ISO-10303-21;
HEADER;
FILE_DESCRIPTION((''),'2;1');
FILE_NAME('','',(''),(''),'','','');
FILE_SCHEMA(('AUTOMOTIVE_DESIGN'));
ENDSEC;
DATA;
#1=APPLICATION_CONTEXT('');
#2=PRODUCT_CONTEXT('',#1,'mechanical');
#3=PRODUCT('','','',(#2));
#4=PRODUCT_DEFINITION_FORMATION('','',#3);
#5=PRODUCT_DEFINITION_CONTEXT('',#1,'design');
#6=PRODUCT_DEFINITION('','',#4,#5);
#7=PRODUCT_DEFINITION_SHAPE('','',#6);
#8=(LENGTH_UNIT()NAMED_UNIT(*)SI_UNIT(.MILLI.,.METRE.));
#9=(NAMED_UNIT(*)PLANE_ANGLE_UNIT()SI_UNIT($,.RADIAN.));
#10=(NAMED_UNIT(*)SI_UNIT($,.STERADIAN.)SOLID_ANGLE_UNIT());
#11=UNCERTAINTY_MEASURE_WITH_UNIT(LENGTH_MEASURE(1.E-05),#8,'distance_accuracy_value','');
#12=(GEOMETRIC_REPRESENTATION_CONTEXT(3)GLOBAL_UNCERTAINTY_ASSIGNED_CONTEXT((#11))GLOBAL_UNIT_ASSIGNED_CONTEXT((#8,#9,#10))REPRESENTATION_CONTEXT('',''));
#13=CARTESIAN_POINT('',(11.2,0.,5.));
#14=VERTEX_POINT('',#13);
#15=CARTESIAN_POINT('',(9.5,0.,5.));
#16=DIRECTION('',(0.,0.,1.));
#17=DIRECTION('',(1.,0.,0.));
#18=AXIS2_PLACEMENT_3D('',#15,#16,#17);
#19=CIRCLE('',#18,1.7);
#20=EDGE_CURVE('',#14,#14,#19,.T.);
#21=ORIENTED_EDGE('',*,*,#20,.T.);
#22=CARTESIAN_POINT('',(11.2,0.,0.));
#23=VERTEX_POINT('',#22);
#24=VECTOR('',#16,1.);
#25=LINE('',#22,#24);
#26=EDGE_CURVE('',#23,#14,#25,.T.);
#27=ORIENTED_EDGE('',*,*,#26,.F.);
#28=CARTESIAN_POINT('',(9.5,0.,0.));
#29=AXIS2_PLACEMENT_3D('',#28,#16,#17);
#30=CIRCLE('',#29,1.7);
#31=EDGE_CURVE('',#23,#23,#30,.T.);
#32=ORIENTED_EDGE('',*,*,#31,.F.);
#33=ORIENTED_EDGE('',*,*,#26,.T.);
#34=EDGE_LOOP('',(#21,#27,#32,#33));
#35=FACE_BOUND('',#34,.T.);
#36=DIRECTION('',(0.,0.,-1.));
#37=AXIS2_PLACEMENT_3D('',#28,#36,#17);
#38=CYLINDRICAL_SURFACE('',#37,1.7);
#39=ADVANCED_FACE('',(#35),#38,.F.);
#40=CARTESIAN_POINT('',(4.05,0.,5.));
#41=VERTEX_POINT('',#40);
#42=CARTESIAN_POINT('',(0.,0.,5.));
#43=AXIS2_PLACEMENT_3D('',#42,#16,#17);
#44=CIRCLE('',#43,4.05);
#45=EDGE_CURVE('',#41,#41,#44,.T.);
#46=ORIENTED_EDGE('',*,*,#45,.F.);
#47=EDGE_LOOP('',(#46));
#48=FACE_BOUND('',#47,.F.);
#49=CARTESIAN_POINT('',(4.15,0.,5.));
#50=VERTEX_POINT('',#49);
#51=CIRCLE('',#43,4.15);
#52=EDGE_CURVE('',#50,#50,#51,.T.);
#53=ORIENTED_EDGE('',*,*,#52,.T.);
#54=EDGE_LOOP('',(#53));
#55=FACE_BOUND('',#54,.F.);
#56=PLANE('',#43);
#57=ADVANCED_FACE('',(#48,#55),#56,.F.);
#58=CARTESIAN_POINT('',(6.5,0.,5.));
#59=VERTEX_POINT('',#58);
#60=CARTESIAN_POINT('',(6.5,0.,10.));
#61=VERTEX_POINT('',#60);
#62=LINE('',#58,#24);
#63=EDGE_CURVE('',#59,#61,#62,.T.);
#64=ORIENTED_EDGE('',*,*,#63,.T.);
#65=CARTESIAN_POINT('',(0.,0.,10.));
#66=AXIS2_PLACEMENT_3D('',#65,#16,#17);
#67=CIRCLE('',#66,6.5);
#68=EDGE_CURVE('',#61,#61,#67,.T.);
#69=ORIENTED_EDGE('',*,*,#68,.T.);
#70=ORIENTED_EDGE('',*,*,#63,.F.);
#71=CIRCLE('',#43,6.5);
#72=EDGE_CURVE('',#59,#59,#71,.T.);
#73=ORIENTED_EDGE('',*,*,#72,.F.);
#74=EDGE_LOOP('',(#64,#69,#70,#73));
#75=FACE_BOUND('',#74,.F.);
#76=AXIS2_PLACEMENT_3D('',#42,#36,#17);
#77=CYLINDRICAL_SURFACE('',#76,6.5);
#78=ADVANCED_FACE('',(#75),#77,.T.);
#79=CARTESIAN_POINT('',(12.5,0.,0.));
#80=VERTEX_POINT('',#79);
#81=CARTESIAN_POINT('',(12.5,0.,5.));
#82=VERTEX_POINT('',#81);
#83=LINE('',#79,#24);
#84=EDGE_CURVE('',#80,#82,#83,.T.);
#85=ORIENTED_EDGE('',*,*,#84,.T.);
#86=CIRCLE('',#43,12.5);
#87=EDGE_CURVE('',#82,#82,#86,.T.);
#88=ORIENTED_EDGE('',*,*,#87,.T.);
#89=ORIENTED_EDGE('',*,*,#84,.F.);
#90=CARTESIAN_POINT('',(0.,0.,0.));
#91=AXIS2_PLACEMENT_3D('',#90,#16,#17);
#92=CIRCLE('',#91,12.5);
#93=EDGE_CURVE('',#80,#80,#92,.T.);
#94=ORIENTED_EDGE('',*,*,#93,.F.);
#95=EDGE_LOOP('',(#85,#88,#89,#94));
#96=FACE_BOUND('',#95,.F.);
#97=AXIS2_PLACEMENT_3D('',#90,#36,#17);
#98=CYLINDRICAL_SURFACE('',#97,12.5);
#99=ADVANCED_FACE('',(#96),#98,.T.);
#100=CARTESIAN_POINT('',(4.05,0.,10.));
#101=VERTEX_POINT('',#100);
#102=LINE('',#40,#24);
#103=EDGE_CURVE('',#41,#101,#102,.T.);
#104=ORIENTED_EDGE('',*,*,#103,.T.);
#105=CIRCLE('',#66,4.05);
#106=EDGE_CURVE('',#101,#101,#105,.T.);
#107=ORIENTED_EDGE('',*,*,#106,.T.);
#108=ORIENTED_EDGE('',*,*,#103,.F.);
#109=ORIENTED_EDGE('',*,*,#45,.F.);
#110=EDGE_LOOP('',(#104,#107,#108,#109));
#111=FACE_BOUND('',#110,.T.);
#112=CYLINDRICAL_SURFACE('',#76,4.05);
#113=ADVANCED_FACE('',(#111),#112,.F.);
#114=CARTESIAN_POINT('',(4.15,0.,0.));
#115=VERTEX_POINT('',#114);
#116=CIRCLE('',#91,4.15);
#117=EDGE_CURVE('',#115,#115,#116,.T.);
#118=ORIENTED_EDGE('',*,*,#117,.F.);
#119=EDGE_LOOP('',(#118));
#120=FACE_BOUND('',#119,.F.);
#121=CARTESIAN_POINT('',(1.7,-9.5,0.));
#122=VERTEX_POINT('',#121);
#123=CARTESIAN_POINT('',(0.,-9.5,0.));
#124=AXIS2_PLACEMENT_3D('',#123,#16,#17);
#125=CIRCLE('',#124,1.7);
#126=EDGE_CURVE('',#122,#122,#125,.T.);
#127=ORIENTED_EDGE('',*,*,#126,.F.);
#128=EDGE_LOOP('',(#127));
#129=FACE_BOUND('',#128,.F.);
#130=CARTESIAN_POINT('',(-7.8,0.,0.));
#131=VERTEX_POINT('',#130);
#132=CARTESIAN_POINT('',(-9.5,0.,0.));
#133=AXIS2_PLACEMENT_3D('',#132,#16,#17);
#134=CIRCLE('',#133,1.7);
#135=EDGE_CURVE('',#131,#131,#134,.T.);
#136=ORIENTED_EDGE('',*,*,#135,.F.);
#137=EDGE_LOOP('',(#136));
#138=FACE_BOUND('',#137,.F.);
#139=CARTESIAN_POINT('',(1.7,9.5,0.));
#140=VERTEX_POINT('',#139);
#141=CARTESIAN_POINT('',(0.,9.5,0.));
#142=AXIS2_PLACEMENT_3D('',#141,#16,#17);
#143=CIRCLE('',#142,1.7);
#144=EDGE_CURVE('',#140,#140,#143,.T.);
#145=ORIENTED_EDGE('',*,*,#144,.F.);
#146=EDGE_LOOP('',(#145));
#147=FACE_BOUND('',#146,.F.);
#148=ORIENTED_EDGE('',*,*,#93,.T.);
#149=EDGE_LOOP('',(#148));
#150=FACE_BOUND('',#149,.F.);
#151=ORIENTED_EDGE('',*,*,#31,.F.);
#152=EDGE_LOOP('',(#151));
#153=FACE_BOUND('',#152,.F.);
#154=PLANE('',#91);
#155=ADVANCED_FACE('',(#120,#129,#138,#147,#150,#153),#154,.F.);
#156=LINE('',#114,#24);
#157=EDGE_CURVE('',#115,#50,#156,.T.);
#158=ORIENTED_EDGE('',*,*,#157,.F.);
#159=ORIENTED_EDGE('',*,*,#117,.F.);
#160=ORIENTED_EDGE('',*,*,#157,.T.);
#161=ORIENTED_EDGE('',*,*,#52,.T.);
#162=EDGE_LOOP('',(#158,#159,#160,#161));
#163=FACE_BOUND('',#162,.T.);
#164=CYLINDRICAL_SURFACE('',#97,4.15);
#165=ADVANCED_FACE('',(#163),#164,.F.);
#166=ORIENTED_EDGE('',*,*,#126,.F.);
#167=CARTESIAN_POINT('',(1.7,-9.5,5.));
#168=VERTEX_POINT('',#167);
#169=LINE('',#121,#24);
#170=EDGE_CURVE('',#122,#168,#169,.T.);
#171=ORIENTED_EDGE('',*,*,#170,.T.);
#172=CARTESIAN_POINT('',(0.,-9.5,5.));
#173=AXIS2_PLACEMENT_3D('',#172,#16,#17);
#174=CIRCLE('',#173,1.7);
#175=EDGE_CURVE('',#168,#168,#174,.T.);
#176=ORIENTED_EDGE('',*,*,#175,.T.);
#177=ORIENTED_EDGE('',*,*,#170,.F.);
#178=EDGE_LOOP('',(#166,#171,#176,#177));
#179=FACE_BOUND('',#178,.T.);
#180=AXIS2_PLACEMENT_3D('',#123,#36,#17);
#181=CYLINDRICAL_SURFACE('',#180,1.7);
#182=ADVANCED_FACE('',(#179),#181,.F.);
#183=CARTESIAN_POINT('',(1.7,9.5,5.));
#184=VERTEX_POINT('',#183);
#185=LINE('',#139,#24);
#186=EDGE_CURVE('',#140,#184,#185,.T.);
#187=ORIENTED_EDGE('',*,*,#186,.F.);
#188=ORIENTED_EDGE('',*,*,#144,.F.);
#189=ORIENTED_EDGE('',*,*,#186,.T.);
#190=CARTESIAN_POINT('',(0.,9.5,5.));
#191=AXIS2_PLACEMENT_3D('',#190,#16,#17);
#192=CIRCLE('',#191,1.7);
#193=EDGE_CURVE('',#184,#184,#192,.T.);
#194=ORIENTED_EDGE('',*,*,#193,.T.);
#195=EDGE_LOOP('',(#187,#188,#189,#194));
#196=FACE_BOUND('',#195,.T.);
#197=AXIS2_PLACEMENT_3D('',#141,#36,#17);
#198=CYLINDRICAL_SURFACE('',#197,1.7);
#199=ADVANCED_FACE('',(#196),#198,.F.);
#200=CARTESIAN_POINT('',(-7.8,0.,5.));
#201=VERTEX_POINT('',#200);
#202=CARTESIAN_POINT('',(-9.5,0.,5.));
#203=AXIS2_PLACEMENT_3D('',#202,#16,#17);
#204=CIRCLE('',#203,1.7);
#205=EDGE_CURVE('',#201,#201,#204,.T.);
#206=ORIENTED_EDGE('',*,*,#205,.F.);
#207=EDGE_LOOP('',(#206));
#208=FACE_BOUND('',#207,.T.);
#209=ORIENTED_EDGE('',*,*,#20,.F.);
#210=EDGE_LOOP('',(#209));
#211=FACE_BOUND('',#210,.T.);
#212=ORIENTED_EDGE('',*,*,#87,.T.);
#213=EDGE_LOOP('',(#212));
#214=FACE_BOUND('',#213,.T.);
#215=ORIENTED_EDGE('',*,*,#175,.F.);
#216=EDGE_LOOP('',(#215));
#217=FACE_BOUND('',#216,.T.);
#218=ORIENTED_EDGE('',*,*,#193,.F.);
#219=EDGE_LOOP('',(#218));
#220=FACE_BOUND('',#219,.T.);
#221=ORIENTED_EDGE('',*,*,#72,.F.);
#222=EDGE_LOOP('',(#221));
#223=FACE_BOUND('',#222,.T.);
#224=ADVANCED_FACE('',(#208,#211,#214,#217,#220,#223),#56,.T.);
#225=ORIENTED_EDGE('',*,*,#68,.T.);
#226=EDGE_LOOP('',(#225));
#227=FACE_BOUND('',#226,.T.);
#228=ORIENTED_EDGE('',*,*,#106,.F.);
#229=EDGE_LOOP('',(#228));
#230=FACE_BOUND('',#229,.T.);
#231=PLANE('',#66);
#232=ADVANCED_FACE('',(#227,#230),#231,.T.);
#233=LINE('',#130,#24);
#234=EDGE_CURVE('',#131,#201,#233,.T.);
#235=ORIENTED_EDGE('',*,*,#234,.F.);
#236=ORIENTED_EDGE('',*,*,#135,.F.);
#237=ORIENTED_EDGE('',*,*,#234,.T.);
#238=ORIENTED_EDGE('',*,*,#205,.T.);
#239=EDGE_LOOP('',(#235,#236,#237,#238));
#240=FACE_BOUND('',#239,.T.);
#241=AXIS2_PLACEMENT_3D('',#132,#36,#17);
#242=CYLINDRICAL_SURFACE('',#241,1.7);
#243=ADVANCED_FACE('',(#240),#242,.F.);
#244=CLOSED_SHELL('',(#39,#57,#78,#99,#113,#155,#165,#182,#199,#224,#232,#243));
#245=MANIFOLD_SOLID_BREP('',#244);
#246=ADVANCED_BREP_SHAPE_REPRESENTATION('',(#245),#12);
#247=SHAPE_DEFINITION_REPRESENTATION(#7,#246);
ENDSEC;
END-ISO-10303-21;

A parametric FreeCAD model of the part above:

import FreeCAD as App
import Part
import Sketcher

doc = App.newDocument("Part")
params = doc.addObject("Spreadsheet::Sheet", "Params")
for row, (alias, value) in enumerate([
    ("sketch1_diameter", "25 mm"),
    ("sketch1_diameter2", "3.4 mm"),
    ("sketch1_diameter3", "8.3 mm"),
    ("pad1_length", "5 mm"),
    ("sketch2_diameter", "13 mm"),
    ("sketch2_diameter2", "8.1 mm"),
    ("pad2_length", "5 mm"),
], start=1):
    params.set(f"A{row}", alias)
    params.set(f"B{row}", "=" + value)
    params.setAlias(f"B{row}", alias)

body = doc.addObject("PartDesign::Body", "Body")

sketch1 = body.newObject("Sketcher::SketchObject", "Sketch")
sketch1.AttachmentSupport = (doc.getObject("XY_Plane"), [""])
sketch1.MapMode = "FlatFace"
sketch1.addGeometry([
    Part.Circle(App.Vector(0, 0, 0), App.Vector(0, 0, 1), 12.5),
    Part.Circle(App.Vector(0, -9.5, 0), App.Vector(0, 0, 1), 1.7),
    Part.Circle(App.Vector(-9.5, 0, 0), App.Vector(0, 0, 1), 1.7),
    Part.Circle(App.Vector(0, 0, 0), App.Vector(0, 0, 1), 4.2),
    Part.Circle(App.Vector(9.5, 0, 0), App.Vector(0, 0, 1), 1.7),
    Part.Circle(App.Vector(0, 9.5, 0), App.Vector(0, 0, 1), 1.7),
], False)
sketch1.addConstraint([
    Sketcher.Constraint("Coincident", 0, 3, -1, 1),
    Sketcher.Constraint("Coincident", 3, 3, -1, 1),
    Sketcher.Constraint("Equal", 1, 2),
    Sketcher.Constraint("Equal", 2, 4),
    Sketcher.Constraint("Equal", 4, 5),
    Sketcher.Constraint("Symmetric", 2, 3, 4, 3, -1, 1),
    Sketcher.Constraint("Symmetric", 1, 3, 5, 3, -1, 1),
    Sketcher.Constraint("PointOnObject", 1, 3, -2),
    Sketcher.Constraint("PointOnObject", 2, 3, -1),
    Sketcher.Constraint("Diameter", 0, 25.0),
    Sketcher.Constraint("Diameter", 1, 3.4),
    Sketcher.Constraint("Diameter", 3, 8.3),
    Sketcher.Constraint("DistanceX", 2, 3, 4, 3, 19.0),
    Sketcher.Constraint("DistanceY", 1, 3, 5, 3, 19.0),
])
sketch1.setExpression("Constraints[9]", "Params.sketch1_diameter")
sketch1.setExpression("Constraints[10]", "Params.sketch1_diameter2")
sketch1.setExpression("Constraints[11]", "Params.sketch1_diameter3")
pad1 = body.newObject("PartDesign::Pad", "Pad")
pad1.Profile = sketch1
pad1.setExpression("Length", "Params.pad1_length")

sketch2 = body.newObject("Sketcher::SketchObject", "Sketch001")
sketch2.AttachmentSupport = (doc.getObject("XY_Plane"), [""])
sketch2.MapMode = "FlatFace"
sketch2.AttachmentOffset = App.Placement(App.Vector(0, 0, 5), App.Rotation())
sketch2.addGeometry([
    Part.Circle(App.Vector(0, 0, 0), App.Vector(0, 0, 1), 6.5),
    Part.Circle(App.Vector(0, 0, 0), App.Vector(0, 0, 1), 4),
], False)
sketch2.addConstraint([
    Sketcher.Constraint("Coincident", 0, 3, -1, 1),
    Sketcher.Constraint("Coincident", 1, 3, -1, 1),
    Sketcher.Constraint("Diameter", 0, 13.0),
    Sketcher.Constraint("Diameter", 1, 8.1),
])
sketch2.setExpression("Constraints[2]", "Params.sketch2_diameter")
sketch2.setExpression("Constraints[3]", "Params.sketch2_diameter2")
pad2 = body.newObject("PartDesign::Pad", "Pad001")
pad2.Profile = sketch2
pad2.setExpression("Length", "Params.pad2_length")

doc.recompute()
